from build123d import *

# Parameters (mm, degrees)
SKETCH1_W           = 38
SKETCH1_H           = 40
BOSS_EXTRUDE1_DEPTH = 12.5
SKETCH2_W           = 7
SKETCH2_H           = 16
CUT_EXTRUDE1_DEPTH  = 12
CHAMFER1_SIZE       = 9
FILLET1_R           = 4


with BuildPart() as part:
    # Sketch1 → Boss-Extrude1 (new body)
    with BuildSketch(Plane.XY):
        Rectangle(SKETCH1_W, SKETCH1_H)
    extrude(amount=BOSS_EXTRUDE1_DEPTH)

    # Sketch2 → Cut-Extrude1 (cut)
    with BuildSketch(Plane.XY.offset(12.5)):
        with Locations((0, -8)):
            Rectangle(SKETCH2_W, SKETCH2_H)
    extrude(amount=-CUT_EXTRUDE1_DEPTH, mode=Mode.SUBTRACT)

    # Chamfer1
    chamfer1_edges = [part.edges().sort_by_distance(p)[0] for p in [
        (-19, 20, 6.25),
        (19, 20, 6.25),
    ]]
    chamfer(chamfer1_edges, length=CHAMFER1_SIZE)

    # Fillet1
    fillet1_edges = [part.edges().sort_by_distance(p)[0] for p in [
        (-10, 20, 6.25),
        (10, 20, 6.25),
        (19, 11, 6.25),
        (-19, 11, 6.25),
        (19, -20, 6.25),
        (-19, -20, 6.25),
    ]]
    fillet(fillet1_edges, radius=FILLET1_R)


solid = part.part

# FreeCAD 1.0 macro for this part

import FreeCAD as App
import Part
import Sketcher
from FreeCAD import Vector
Q = App.Units.Quantity


def edges_at(feature, points):
    """Names of the edges that pass closest to the given points."""
    edges = feature.Shape.Edges
    near = lambda p: min(range(len(edges)), key=lambda i: edges[i].distToShape(Part.Vertex(*p))[0])
    return sorted({f"Edge{near(p) + 1}" for p in points})

doc = App.newDocument("Part")
body = doc.addObject("PartDesign::Body", "Body")

# Sketch on XY plane
sketch1 = body.newObject("Sketcher::SketchObject", "Sketch")
sketch1.AttachmentSupport = (doc.getObject("XY_Plane"), [""])
sketch1.MapMode = "FlatFace"
sketch1.addGeometry([
    Part.LineSegment(Vector(-19, 20, 0), Vector(-19, -20, 0)),
    Part.LineSegment(Vector(-19, -20, 0), Vector(19, -20, 0)),
    Part.LineSegment(Vector(19, -20, 0), Vector(19, 20, 0)),
    Part.LineSegment(Vector(19, 20, 0), Vector(-19, 20, 0)),
], False)
sketch1.addConstraint([
    Sketcher.Constraint("Coincident", 0, 2, 1, 1),
    Sketcher.Constraint("Coincident", 1, 2, 2, 1),
    Sketcher.Constraint("Coincident", 2, 2, 3, 1),
    Sketcher.Constraint("Coincident", 3, 2, 0, 1),
    Sketcher.Constraint("Vertical", 0),
    Sketcher.Constraint("Horizontal", 1),
    Sketcher.Constraint("Vertical", 2),
    Sketcher.Constraint("Horizontal", 3),
    Sketcher.Constraint("Symmetric", 0, 2, 2, 2, -1, 1),
    Sketcher.Constraint("DistanceX", 1, 1, 1, 2, Q("38 mm")),
    Sketcher.Constraint("DistanceY", 0, 2, 0, 1, Q("40 mm")),
])
pad1 = body.newObject("PartDesign::Pad", "Pad")
pad1.Profile = sketch1
pad1.Length = 12.5

# Sketch on XY plane
sketch2 = body.newObject("Sketcher::SketchObject", "Sketch001")
sketch2.AttachmentSupport = (doc.getObject("XY_Plane"), [""])
sketch2.MapMode = "FlatFace"
sketch2.AttachmentOffset = App.Placement(Vector(0, 0, 12.5), App.Rotation())
sketch2.addGeometry([
    Part.LineSegment(Vector(-4, 0, 0), Vector(-4, -16, 0)),
    Part.LineSegment(Vector(-4, -16, 0), Vector(4, -16, 0)),
    Part.LineSegment(Vector(4, -16, 0), Vector(4, 0, 0)),
    Part.LineSegment(Vector(4, 0, 0), Vector(-4, 0, 0)),
], False)
sketch2.addConstraint([
    Sketcher.Constraint("Coincident", 0, 2, 1, 1),
    Sketcher.Constraint("Coincident", 1, 2, 2, 1),
    Sketcher.Constraint("Coincident", 2, 2, 3, 1),
    Sketcher.Constraint("Coincident", 3, 2, 0, 1),
    Sketcher.Constraint("Vertical", 0),
    Sketcher.Constraint("Horizontal", 1),
    Sketcher.Constraint("Vertical", 2),
    Sketcher.Constraint("Horizontal", 3),
    Sketcher.Constraint("Symmetric", 2, 2, 3, 2, -1, 1),
    Sketcher.Constraint("DistanceX", 1, 1, 1, 2, Q("7 mm")),
    Sketcher.Constraint("DistanceY", 0, 2, 0, 1, Q("16 mm")),
])
pocket1 = body.newObject("PartDesign::Pocket", "Pocket")
pocket1.Profile = sketch2
pocket1.Length = 12
doc.recompute()

chamfer = body.newObject("PartDesign::Chamfer", "Chamfer")
chamfer.Base = (pocket1, edges_at(pocket1, [(-19, 20, 6.25), (19, 20, 6.25)]))
chamfer.Size = 9
doc.recompute()

fillet = body.newObject("PartDesign::Fillet", "Fillet")
fillet.Base = (chamfer, edges_at(chamfer, [
    (-10, 20, 6.25),
    (10, 20, 6.25),
    (19, 11, 6.25),
    (-19, 11, 6.25),
    (19, -20, 6.25),
    (-19, -20, 6.25),
]))
fillet.Radius = 4

doc.recompute()
